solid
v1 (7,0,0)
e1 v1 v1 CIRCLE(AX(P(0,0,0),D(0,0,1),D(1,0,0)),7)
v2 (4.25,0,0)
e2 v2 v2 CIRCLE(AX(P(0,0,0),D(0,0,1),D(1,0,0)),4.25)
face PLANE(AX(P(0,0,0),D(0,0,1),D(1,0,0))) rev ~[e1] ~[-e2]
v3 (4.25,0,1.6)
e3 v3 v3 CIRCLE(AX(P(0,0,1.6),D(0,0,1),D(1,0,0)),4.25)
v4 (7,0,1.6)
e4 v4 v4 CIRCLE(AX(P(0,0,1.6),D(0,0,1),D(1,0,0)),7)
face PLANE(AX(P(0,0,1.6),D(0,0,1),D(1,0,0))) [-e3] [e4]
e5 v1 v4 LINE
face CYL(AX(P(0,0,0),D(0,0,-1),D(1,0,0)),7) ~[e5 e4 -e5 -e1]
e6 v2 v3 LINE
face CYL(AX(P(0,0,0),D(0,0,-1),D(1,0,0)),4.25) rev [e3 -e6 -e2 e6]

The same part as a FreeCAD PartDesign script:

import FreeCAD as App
import Part
import Sketcher
from FreeCAD import Vector
Q = App.Units.Quantity

doc = App.newDocument("Part")
body = doc.addObject("PartDesign::Body", "Body")

sketch1 = body.newObject("Sketcher::SketchObject", "Sketch")
sketch1.AttachmentSupport = (doc.getObject("XY_Plane"), [""])
sketch1.MapMode = "FlatFace"
sketch1.addGeometry([
    Part.Circle(Vector(0, 0, 0), Vector(0, 0, 1), 7),
    Part.Circle(Vector(0, 0, 0), Vector(0, 0, 1), 4.25),
], False)
sketch1.addConstraint([
    Sketcher.Constraint("Coincident", 0, 3, -1, 1),
    Sketcher.Constraint("Coincident", 1, 3, -1, 1),
    Sketcher.Constraint("Diameter", 0, Q("14 mm")),
    Sketcher.Constraint("Diameter", 1, Q("8.5 mm")),
])
pad1 = body.newObject("PartDesign::Pad", "Pad")
pad1.Profile = sketch1
pad1.Length = 1.6

doc.recompute()
